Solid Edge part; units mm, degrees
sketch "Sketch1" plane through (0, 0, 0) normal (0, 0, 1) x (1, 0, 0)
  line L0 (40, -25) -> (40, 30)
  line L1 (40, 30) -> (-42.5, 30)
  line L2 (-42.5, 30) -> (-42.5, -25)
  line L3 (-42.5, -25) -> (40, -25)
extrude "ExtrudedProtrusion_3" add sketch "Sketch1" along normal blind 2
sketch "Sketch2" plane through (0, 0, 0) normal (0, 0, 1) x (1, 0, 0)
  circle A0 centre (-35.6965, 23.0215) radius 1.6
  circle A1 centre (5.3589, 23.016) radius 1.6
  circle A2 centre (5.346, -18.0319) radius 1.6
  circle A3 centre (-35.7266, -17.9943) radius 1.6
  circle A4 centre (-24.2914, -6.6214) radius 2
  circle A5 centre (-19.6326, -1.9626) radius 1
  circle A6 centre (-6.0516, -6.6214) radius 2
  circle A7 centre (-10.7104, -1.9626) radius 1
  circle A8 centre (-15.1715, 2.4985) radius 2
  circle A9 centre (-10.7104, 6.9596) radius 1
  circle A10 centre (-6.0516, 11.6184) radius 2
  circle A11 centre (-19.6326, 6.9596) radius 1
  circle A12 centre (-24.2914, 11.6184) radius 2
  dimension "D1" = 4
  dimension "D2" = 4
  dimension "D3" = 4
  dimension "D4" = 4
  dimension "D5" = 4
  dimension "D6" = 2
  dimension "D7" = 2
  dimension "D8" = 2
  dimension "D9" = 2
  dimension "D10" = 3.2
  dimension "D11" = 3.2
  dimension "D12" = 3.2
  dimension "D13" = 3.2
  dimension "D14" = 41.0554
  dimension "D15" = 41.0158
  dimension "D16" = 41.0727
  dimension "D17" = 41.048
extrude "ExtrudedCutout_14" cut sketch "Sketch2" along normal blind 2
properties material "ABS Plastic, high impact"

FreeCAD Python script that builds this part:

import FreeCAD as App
import Part
import Sketcher
Q = App.Units.Quantity

doc = App.newDocument("Part")
body = doc.addObject("PartDesign::Body", "Body")

# Sketch on XY plane
sketch1 = body.newObject("Sketcher::SketchObject", "Sketch")
sketch1.AttachmentSupport = (doc.getObject("XY_Plane"), [""])
sketch1.MapMode = "FlatFace"
sketch1.addGeometry([
    Part.LineSegment(App.Vector(-42, -25, 0), App.Vector(40, -25, 0)),
    Part.LineSegment(App.Vector(40, -25, 0), App.Vector(40, 30, 0)),
    Part.LineSegment(App.Vector(40, 30, 0), App.Vector(-42, 30, 0)),
    Part.LineSegment(App.Vector(-42, 30, 0), App.Vector(-42, -25, 0)),
], False)
sketch1.addConstraint([
    Sketcher.Constraint("Coincident", 0, 2, 1, 1),
    Sketcher.Constraint("Coincident", 1, 2, 2, 1),
    Sketcher.Constraint("Coincident", 2, 2, 3, 1),
    Sketcher.Constraint("Coincident", 3, 2, 0, 1),
    Sketcher.Constraint("Horizontal", 0),
    Sketcher.Constraint("Vertical", 1),
    Sketcher.Constraint("Horizontal", 2),
    Sketcher.Constraint("Vertical", 3),
    Sketcher.Constraint("DistanceY", 1, 1, 1, 2, Q("55 mm")),
    Sketcher.Constraint("DistanceX", 0, 1, 0, 2, Q("82.5 mm")),
    Sketcher.Constraint("DistanceX", -1, 1, 0, 2, Q("40 mm")),
    Sketcher.Constraint("DistanceY", 0, 2, -1, 1, Q("25 mm")),
])
pad1 = body.newObject("PartDesign::Pad", "Pad")
pad1.Profile = sketch1
pad1.Length = 2

# Sketch on XY plane
sketch2 = body.newObject("Sketcher::SketchObject", "Sketch001")
sketch2.AttachmentSupport = (doc.getObject("XY_Plane"), [""])
sketch2.MapMode = "FlatFace"
sketch2.addGeometry([
    Part.Circle(App.Vector(-35.7, 23, 0), App.Vector(0, 0, 1), 1.6),  # 0
    Part.Circle(App.Vector(5.4, 23, 0), App.Vector(0, 0, 1), 1.6),  # 1
    Part.Circle(App.Vector(5.3, -18, 0), App.Vector(0, 0, 1), 1.6),  # 2
    Part.Circle(App.Vector(-35.7, -18, 0), App.Vector(0, 0, 1), 1.6),  # 3
    Part.Circle(App.Vector(-24.3, -6.6, 0), App.Vector(0, 0, 1), 2),  # 4
    Part.Circle(App.Vector(-19.6, -2, 0), App.Vector(0, 0, 1), 1),  # 5
    Part.Circle(App.Vector(-6.1, -6.6, 0), App.Vector(0, 0, 1), 2),  # 6
    Part.Circle(App.Vector(-10.7, -2, 0), App.Vector(0, 0, 1), 1),  # 7
    Part.Circle(App.Vector(-15.2, 2.5, 0), App.Vector(0, 0, 1), 2),  # 8
    Part.Circle(App.Vector(-10.7, 7, 0), App.Vector(0, 0, 1), 1),  # 9
    Part.Circle(App.Vector(-6.1, 11.6, 0), App.Vector(0, 0, 1), 2),  # 10
    Part.Circle(App.Vector(-19.6, 7, 0), App.Vector(0, 0, 1), 1),  # 11
    Part.Circle(App.Vector(-24.3, 11.6, 0), App.Vector(0, 0, 1), 2),  # 12
], False)
sketch2.addConstraint([
    Sketcher.Constraint("Equal", 0, 1),
    Sketcher.Constraint("Equal", 1, 2),
    Sketcher.Constraint("Equal", 2, 3),
    Sketcher.Constraint("Equal", 4, 6),
    Sketcher.Constraint("Equal", 5, 7),
    Sketcher.Constraint("Equal", 6, 8),
    Sketcher.Constraint("Equal", 7, 9),
    Sketcher.Constraint("Equal", 8, 10),
    Sketcher.Constraint("Equal", 9, 11),
    Sketcher.Constraint("Equal", 10, 12),
    Sketcher.Constraint("Horizontal", 4, 3, 6, 3),
    Sketcher.Constraint("Horizontal", 5, 3, 7, 3),
    Sketcher.Constraint("Horizontal", 9, 3, 11, 3),
    Sketcher.Constraint("Horizontal", 10, 3, 12, 3),
    Sketcher.Constraint("Vertical", 7, 3, 9, 3),
    Sketcher.Constraint("Vertical", 6, 3, 10, 3),
    Sketcher.Constraint("Vertical", 5, 3, 11, 3),
    Sketcher.Constraint("Vertical", 4, 3, 12, 3),
    Sketcher.Constraint("Diameter", 4, Q("4 mm")),
    Sketcher.Constraint("Diameter", 5, Q("2 mm")),
    Sketcher.Constraint("Diameter", 0, Q("3.2 mm")),
    Sketcher.Constraint("DistanceX", 3, 3, 0, 3, Q("0.03 mm")),
    Sketcher.Constraint("DistanceX", 4, 3, 8, 3, Q("9.12 mm")),
    Sketcher.Constraint("DistanceY", 4, 3, 8, 3, Q("9.12 mm")),
    Sketcher.Constraint("DistanceX", 8, 3, 6, 3, Q("9.12 mm")),
    Sketcher.Constraint("DistanceY", 8, 3, 10, 3, Q("9.12 mm")),
    Sketcher.Constraint("DistanceX", -1, 1, 1, 3, Q("5.359 mm")),
    Sketcher.Constraint("DistanceY", -1, 1, 1, 3, Q("23.016 mm")),
    Sketcher.Constraint("DistanceX", -1, 1, 2, 3, Q("5.346 mm")),
    Sketcher.Constraint("DistanceY", 2, 3, -1, 1, Q("18.032 mm")),
    Sketcher.Constraint("DistanceY", 3, 3, 4, 3, Q("11.373 mm")),
    Sketcher.Constraint("DistanceX", 0, 3, 4, 3, Q("11.405 mm")),
    Sketcher.Constraint("DistanceY", 4, 3, 0, 3, Q("29.643 mm")),
    Sketcher.Constraint("DistanceX", 3, 3, 5, 3, Q("16.094 mm")),
    Sketcher.Constraint("DistanceY", 5, 3, 0, 3, Q("24.984 mm")),
    Sketcher.Constraint("DistanceX", 4, 3, 7, 3, Q("13.581 mm")),
    Sketcher.Constraint("DistanceY", 8, 3, 9, 3, Q("4.461 mm")),
    Sketcher.Constraint("DistanceX", 0, 3, -1, 1, Q("35.6965 mm")),
    Sketcher.Constraint("DistanceY", -1, 1, 0, 3, Q("23.0215 mm")),
])
pocket1 = body.newObject("PartDesign::Pocket", "Pocket")
pocket1.Profile = sketch2
pocket1.Length = 2
pocket1.Reversed = True

doc.recompute()
